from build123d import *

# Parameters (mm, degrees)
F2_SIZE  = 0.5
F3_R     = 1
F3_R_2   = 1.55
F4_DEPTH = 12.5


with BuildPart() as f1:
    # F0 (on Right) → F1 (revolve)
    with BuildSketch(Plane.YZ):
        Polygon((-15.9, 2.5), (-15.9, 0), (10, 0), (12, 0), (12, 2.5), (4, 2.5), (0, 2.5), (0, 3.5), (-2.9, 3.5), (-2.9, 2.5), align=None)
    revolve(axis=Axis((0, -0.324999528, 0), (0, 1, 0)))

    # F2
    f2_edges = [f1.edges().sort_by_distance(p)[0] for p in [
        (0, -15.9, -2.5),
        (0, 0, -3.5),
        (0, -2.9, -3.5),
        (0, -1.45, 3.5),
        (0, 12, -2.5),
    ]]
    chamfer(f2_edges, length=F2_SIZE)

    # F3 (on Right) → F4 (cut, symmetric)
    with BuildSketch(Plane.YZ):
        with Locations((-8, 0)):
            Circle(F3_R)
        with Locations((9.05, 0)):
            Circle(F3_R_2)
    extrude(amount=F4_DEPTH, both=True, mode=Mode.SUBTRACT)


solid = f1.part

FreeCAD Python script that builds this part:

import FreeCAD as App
import Part
import Sketcher

V = App.Vector


def edges_at(feature, points):
    """Names of the edges that pass closest to the given points."""
    edges = feature.Shape.Edges
    near = lambda p: min(range(len(edges)), key=lambda i: edges[i].distToShape(Part.Vertex(*p))[0])
    return sorted({f"Edge{near(p) + 1}" for p in points})

doc = App.newDocument("Part")
params = doc.addObject("Spreadsheet::Sheet", "Params")
for row, (alias, value) in enumerate([
    ("sketch1_width", "12 mm"),
    ("sketch1_width2", "13 mm"),
    ("sketch1_height", "1 mm"),
    ("sketch1_width3", "27.9 mm"),
    ("sketch1_height2", "2.5 mm"),
    ("revolution_angle", "360 deg"),
    ("chamfer_size", "0.5 mm"),
    ("sketch2_diameter", "2 mm"),
    ("sketch2_diameter2", "3.1 mm"),
    ("pocket1_length", "25 mm"),
], start=1):
    params.set(f"A{row}", alias)
    params.set(f"B{row}", "=" + value)
    params.setAlias(f"B{row}", alias)

body = doc.addObject("PartDesign::Body", "Body")

sketch1 = doc.addObject("Sketcher::SketchObject", "Sketch")
body.addObject(sketch1)
sketch1.AttachmentSupport = (doc.YZ_Plane, [""])
sketch1.MapMode = "FlatFace"
sketch1.addGeometry([
    Part.LineSegment(V(-15.9, 2.5, 0), V(-15.9, 0, 0)),
    Part.LineSegment(V(-15.9, 0, 0), V(12, 0, 0)),
    Part.LineSegment(V(12, 0, 0), V(12, 2.5, 0)),
    Part.LineSegment(V(12, 2.5, 0), V(0, 2.5, 0)),
    Part.LineSegment(V(0, 2.5, 0), V(0, 3.5, 0)),
    Part.LineSegment(V(0, 3.5, 0), V(-2.9, 3.5, 0)),
    Part.LineSegment(V(-2.9, 3.5, 0), V(-2.9, 2.5, 0)),
    Part.LineSegment(V(-2.9, 2.5, 0), V(-15.9, 2.5, 0)),
], False)
sketch1.addConstraint([
    Sketcher.Constraint("Coincident", 0, 2, 1, 1),
    Sketcher.Constraint("Coincident", 1, 2, 2, 1),
    Sketcher.Constraint("Coincident", 2, 2, 3, 1),
    Sketcher.Constraint("Coincident", 3, 2, 4, 1),
    Sketcher.Constraint("Coincident", 4, 2, 5, 1),
    Sketcher.Constraint("Coincident", 5, 2, 6, 1),
    Sketcher.Constraint("Coincident", 6, 2, 7, 1),
    Sketcher.Constraint("Coincident", 7, 2, 0, 1),
    Sketcher.Constraint("Vertical", 0),
    Sketcher.Constraint("Horizontal", 1),
    Sketcher.Constraint("Vertical", 2),
    Sketcher.Constraint("Horizontal", 3),
    Sketcher.Constraint("Vertical", 4),
    Sketcher.Constraint("Horizontal", 5),
    Sketcher.Constraint("Vertical", 6),
    Sketcher.Constraint("Horizontal", 7),
    Sketcher.Constraint("PointOnObject", 0, 2, -1),
    Sketcher.Constraint("PointOnObject", 3, 2, -2),
    Sketcher.Constraint("Horizontal", 3, 2, 6, 2),
    Sketcher.Constraint("DistanceX", 3, 2, 3, 1, 12.0),
    Sketcher.Constraint("DistanceX", 7, 2, 7, 1, 13.0),
    Sketcher.Constraint("DistanceY", 4, 1, 4, 2, 1.0),
    Sketcher.Constraint("DistanceX", 1, 1, 1, 2, 27.9),
    Sketcher.Constraint("DistanceY", 0, 2, 0, 1, 2.5),
])
sketch1.setExpression("Constraints[19]", "Params.sketch1_width")
sketch1.setExpression("Constraints[20]", "Params.sketch1_width2")
sketch1.setExpression("Constraints[21]", "Params.sketch1_height")
sketch1.setExpression("Constraints[22]", "Params.sketch1_width3")
sketch1.setExpression("Constraints[23]", "Params.sketch1_height2")
revolution = doc.addObject("PartDesign::Revolution", "Revolution")
body.addObject(revolution)
revolution.Profile = sketch1
revolution.ReferenceAxis = (sketch1, ["H_Axis"])
revolution.setExpression("Angle", "Params.revolution_angle")
doc.recompute()

chamfer = doc.addObject("PartDesign::Chamfer", "Chamfer")
body.addObject(chamfer)
chamfer.Base = (revolution, edges_at(revolution, [
    (0, -15.9, -2.5),
    (0, 0, -3.5),
    (0, -2.9, -3.5),
    (0, -1.45, 3.5),
    (0, 12, -2.5),
]))
chamfer.setExpression("Size", "Params.chamfer_size")

sketch2 = doc.addObject("Sketcher::SketchObject", "Sketch001")
body.addObject(sketch2)
sketch2.AttachmentSupport = (doc.YZ_Plane, [""])
sketch2.MapMode = "FlatFace"
sketch2.addGeometry([
    Part.Circle(V(-8, 0, 0), V(0, 0, 1), 1),
    Part.Circle(V(9.1, 0, 0), V(0, 0, 1), 1.6),
], False)
sketch2.addConstraint([
    Sketcher.Constraint("PointOnObject", 0, 3, -1),
    Sketcher.Constraint("PointOnObject", 1, 3, -1),
    Sketcher.Constraint("Diameter", 0, 2.0),
    Sketcher.Constraint("Diameter", 1, 3.1),
    Sketcher.Constraint("DistanceX", 0, 3, -1, 1, 8.0),
    Sketcher.Constraint("DistanceX", -1, 1, 1, 3, 9.05),
])
sketch2.setExpression("Constraints[2]", "Params.sketch2_diameter")
sketch2.setExpression("Constraints[3]", "Params.sketch2_diameter2")
pocket1 = doc.addObject("PartDesign::Pocket", "Pocket")
body.addObject(pocket1)
pocket1.Profile = sketch2
pocket1.setExpression("Length", "Params.pocket1_length")
pocket1.Midplane = True

doc.recompute()
